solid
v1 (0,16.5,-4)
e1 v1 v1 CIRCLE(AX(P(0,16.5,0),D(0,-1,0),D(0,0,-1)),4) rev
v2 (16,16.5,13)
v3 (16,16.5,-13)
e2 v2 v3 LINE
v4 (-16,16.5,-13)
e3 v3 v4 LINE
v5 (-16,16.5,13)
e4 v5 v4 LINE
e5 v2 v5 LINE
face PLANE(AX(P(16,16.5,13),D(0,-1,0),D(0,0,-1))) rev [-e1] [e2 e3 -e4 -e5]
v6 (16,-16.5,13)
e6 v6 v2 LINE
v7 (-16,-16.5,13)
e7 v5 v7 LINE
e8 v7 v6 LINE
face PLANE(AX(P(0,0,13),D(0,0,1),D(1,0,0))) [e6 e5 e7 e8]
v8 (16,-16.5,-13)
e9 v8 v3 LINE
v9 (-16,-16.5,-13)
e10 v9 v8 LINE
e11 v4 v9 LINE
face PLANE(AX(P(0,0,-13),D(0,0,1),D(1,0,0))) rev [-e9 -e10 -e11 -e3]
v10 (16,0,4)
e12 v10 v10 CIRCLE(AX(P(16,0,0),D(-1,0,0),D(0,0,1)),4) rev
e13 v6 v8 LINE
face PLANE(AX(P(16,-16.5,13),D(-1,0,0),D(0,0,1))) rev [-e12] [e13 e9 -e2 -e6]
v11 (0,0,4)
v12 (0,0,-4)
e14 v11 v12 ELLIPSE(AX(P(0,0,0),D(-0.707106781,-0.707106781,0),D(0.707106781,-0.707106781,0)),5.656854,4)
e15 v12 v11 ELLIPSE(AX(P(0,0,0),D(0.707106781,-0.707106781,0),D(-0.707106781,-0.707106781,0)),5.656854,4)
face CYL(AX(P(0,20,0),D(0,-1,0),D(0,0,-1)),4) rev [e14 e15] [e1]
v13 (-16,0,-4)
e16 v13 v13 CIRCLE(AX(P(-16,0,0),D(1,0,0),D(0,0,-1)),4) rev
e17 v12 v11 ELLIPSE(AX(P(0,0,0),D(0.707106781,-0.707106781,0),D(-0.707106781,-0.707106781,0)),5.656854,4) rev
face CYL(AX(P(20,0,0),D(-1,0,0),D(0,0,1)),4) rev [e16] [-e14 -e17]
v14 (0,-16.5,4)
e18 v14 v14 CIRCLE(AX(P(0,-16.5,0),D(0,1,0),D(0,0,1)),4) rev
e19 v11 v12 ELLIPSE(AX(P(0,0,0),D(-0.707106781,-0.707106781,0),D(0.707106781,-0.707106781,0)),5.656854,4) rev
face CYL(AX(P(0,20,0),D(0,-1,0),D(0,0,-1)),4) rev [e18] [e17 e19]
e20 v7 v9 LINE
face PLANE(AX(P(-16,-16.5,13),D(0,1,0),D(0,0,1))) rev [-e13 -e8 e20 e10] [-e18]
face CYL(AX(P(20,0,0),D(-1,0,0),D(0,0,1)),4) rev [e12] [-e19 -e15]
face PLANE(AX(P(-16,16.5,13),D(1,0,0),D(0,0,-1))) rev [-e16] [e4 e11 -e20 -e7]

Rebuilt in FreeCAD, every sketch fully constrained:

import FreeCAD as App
import Part
import Sketcher
from FreeCAD import Vector

doc = App.newDocument("Part")
params = doc.addObject("Spreadsheet::Sheet", "Params")
for row, (alias, value) in enumerate([
    ("sketch1_width", "32 mm"),
    ("sketch1_height", "33 mm"),
    ("pad1_length", "26 mm"),
    ("sketch2_diameter", "8 mm"),
    ("pocket1_length", "40 mm"),
    ("sketch3_diameter", "8 mm"),
    ("pocket2_length", "40 mm"),
], start=1):
    params.set(f"A{row}", alias)
    params.set(f"B{row}", "=" + value)
    params.setAlias(f"B{row}", alias)

body = doc.addObject("PartDesign::Body", "Body")

# Sketch on XY plane
sketch1 = body.newObject("Sketcher::SketchObject", "Sketch")
sketch1.AttachmentSupport = (doc.getObject("XY_Plane"), [""])
sketch1.MapMode = "FlatFace"
sketch1.AttachmentOffset = App.Placement(Vector(0, 0, -13), App.Rotation())
sketch1.addGeometry([
    Part.LineSegment(Vector(-16, 16, 0), Vector(-16, -16, 0)),
    Part.LineSegment(Vector(-16, -16, 0), Vector(16, -16, 0)),
    Part.LineSegment(Vector(16, -16, 0), Vector(16, 16, 0)),
    Part.LineSegment(Vector(16, 16, 0), Vector(-16, 16, 0)),
], False)
sketch1.addConstraint([
    Sketcher.Constraint("Coincident", 0, 2, 1, 1),
    Sketcher.Constraint("Coincident", 1, 2, 2, 1),
    Sketcher.Constraint("Coincident", 2, 2, 3, 1),
    Sketcher.Constraint("Coincident", 3, 2, 0, 1),
    Sketcher.Constraint("Vertical", 0),
    Sketcher.Constraint("Horizontal", 1),
    Sketcher.Constraint("Vertical", 2),
    Sketcher.Constraint("Horizontal", 3),
    Sketcher.Constraint("Symmetric", 0, 2, 2, 2, -1, 1),
    Sketcher.Constraint("DistanceX", 1, 1, 1, 2, 32.0),
    Sketcher.Constraint("DistanceY", 0, 2, 0, 1, 33.0),
])
sketch1.setExpression("Constraints[9]", "Params.sketch1_width")
sketch1.setExpression("Constraints[10]", "Params.sketch1_height")
pad1 = body.newObject("PartDesign::Pad", "Pad")
pad1.Profile = sketch1
pad1.setExpression("Length", "Params.pad1_length")

# Sketch on XZ plane
sketch2 = body.newObject("Sketcher::SketchObject", "Sketch001")
sketch2.AttachmentSupport = (doc.getObject("XZ_Plane"), [""])
sketch2.MapMode = "FlatFace"
sketch2.AttachmentOffset = App.Placement(Vector(0, 0, 20), App.Rotation())
sketch2.addGeometry(Part.Circle(Vector(0, 0, 0), Vector(0, 0, 1), 4), False)
sketch2.addConstraint([
    Sketcher.Constraint("Coincident", 0, 3, -1, 1),
    Sketcher.Constraint("Diameter", 0, 8.0),
])
sketch2.setExpression("Constraints[1]", "Params.sketch2_diameter")
pocket1 = body.newObject("PartDesign::Pocket", "Pocket")
pocket1.Profile = sketch2
pocket1.setExpression("Length", "Params.pocket1_length")

# Sketch on YZ plane
sketch3 = body.newObject("Sketcher::SketchObject", "Sketch002")
sketch3.AttachmentSupport = (doc.getObject("YZ_Plane"), [""])
sketch3.MapMode = "FlatFace"
sketch3.AttachmentOffset = App.Placement(Vector(0, 0, -20), App.Rotation())
sketch3.addGeometry(Part.Circle(Vector(0, 0, 0), Vector(0, 0, 1), 4), False)
sketch3.addConstraint([
    Sketcher.Constraint("Coincident", 0, 3, -1, 1),
    Sketcher.Constraint("Diameter", 0, 8.0),
])
sketch3.setExpression("Constraints[1]", "Params.sketch3_diameter")
pocket2 = body.newObject("PartDesign::Pocket", "Pocket001")
pocket2.Profile = sketch3
pocket2.setExpression("Length", "Params.pocket2_length")
pocket2.Reversed = True

doc.recompute()
